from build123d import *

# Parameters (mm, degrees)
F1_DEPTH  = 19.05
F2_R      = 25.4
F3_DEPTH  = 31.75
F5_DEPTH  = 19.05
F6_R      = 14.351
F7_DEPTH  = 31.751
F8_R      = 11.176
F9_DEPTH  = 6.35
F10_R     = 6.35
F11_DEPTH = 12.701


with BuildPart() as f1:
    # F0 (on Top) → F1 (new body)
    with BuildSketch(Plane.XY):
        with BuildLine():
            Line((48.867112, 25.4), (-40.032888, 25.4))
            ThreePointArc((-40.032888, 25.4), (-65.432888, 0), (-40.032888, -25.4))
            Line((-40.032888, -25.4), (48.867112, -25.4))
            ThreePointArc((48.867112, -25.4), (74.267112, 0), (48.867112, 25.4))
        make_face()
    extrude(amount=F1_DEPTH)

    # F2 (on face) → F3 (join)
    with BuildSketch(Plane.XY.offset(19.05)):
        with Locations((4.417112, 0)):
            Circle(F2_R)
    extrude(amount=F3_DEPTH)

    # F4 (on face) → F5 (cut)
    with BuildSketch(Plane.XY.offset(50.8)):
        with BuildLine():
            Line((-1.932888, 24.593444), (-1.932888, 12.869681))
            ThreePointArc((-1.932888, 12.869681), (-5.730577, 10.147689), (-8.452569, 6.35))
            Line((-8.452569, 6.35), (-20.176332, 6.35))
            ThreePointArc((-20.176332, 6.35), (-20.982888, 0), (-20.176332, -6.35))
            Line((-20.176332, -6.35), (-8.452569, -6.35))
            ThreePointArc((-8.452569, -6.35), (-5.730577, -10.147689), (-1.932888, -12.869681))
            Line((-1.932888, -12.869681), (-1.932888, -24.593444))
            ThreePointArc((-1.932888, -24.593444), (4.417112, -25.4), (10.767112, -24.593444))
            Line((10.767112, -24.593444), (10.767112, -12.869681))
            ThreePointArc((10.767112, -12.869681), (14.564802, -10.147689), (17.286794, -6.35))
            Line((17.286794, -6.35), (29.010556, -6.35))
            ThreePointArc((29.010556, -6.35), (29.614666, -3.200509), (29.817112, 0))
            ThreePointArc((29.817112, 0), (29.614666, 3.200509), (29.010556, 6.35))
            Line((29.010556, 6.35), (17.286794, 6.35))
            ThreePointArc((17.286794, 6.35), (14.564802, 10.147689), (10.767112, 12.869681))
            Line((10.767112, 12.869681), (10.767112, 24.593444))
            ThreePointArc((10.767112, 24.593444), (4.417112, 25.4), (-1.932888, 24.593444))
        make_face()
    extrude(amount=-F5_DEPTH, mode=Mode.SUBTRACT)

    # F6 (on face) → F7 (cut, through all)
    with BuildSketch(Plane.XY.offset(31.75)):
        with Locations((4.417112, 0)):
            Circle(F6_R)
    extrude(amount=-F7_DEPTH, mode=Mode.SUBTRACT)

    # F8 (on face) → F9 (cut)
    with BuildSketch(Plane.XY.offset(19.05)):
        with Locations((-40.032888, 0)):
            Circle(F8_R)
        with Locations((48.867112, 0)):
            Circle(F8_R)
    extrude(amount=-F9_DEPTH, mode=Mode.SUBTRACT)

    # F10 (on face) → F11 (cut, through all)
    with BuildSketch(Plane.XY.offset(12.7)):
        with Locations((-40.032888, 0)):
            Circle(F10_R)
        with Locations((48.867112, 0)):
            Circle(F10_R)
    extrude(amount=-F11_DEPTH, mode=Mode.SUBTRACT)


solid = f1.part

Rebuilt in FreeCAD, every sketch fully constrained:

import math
import FreeCAD as App
import Part
import Sketcher
Q = App.Units.Quantity

doc = App.newDocument("Part")
body = doc.addObject("PartDesign::Body", "Body")

# Sketch on XY plane
sketch1 = doc.addObject("Sketcher::SketchObject", "Sketch")
body.addObject(sketch1)
sketch1.AttachmentSupport = (doc.XY_Plane, [""])
sketch1.MapMode = "FlatFace"
sketch1.addGeometry(Part.LineSegment(App.Vector(49, 25, 0), App.Vector(-40, 25, 0)), False)
sketch1.addGeometry(Part.ArcOfCircle(Part.Circle(App.Vector(-40, 0, 0), App.Vector(0, 0, 1), 25), math.radians(90), math.radians(270)), False)
sketch1.addGeometry(Part.LineSegment(App.Vector(-40, -25, 0), App.Vector(49, -25, 0)), False)
sketch1.addGeometry(Part.ArcOfCircle(Part.Circle(App.Vector(49, 0, 0), App.Vector(0, 0, 1), 25), math.radians(-90), math.radians(90)), False)
sketch1.addConstraint(Sketcher.Constraint("Tangent", 0, 2, 1, 1))
sketch1.addConstraint(Sketcher.Constraint("Tangent", 1, 2, 2, 1))
sketch1.addConstraint(Sketcher.Constraint("Tangent", 2, 2, 3, 1))
sketch1.addConstraint(Sketcher.Constraint("Tangent", 3, 2, 0, 1))
sketch1.addConstraint(Sketcher.Constraint("Horizontal", 0))
sketch1.addConstraint(Sketcher.Constraint("Horizontal", 2))
sketch1.addConstraint(Sketcher.Constraint("PointOnObject", 1, 3, -1))
sketch1.addConstraint(Sketcher.Constraint("Radius", 1, Q("1 in")))
sketch1.addConstraint(Sketcher.Constraint("DistanceX", 0, 2, 0, 1, Q("3.5 in")))
sketch1.addConstraint(Sketcher.Constraint("DistanceX", 1, 3, -1, 1, 40.032888))
pad1 = doc.addObject("PartDesign::Pad", "Pad")
body.addObject(pad1)
pad1.Profile = sketch1
pad1.Length = Q("0.75 in")

# Sketch on XY plane
sketch2 = doc.addObject("Sketcher::SketchObject", "Sketch001")
body.addObject(sketch2)
sketch2.AttachmentSupport = (doc.XY_Plane, [""])
sketch2.MapMode = "FlatFace"
sketch2.AttachmentOffset = App.Placement(App.Vector(0, 0, 0.75 * 25.4), App.Rotation())
sketch2.addGeometry(Part.Circle(App.Vector(4, 0, 0), App.Vector(0, 0, 1), 25), False)
sketch2.addConstraint(Sketcher.Constraint("PointOnObject", 0, 3, -1))
sketch2.addConstraint(Sketcher.Constraint("Diameter", 0, Q("2 in")))
sketch2.addConstraint(Sketcher.Constraint("DistanceX", -1, 1, 0, 3, 4.417112))
pad2 = doc.addObject("PartDesign::Pad", "Pad001")
body.addObject(pad2)
pad2.Profile = sketch2
pad2.Length = Q("1.25 in")

# Sketch on XY plane
sketch3 = doc.addObject("Sketcher::SketchObject", "Sketch002")
body.addObject(sketch3)
sketch3.AttachmentSupport = (doc.XY_Plane, [""])
sketch3.MapMode = "FlatFace"
sketch3.AttachmentOffset = App.Placement(App.Vector(0, 0, 2 * 25.4), App.Rotation())
sketch3.addGeometry(Part.LineSegment(App.Vector(-2, 25, 0), App.Vector(-2, 13, 0)), False)
sketch3.addGeometry(Part.ArcOfCircle(Part.Circle(App.Vector(4, 0, 0), App.Vector(0, 0, 1), 14), math.radians(116), math.radians(154)), False)
sketch3.addGeometry(Part.LineSegment(App.Vector(-8, 6, 0), App.Vector(-20, 6, 0)), False)
sketch3.addGeometry(Part.ArcOfCircle(Part.Circle(App.Vector(4, 0, 0), App.Vector(0, 0, 1), 25), math.radians(166), math.radians(194)), False)
sketch3.addGeometry(Part.LineSegment(App.Vector(-20, -6, 0), App.Vector(-8, -6, 0)), False)
sketch3.addGeometry(Part.ArcOfCircle(Part.Circle(App.Vector(4, 0, 0), App.Vector(0, 0, 1), 14), math.radians(-154), math.radians(-116)), False)
sketch3.addGeometry(Part.LineSegment(App.Vector(-2, -13, 0), App.Vector(-2, -25, 0)), False)
sketch3.addGeometry(Part.ArcOfCircle(Part.Circle(App.Vector(4, 0, 0), App.Vector(0, 0, 1), 25), math.radians(-104), math.radians(-76)), False)
sketch3.addGeometry(Part.LineSegment(App.Vector(11, -25, 0), App.Vector(11, -13, 0)), False)
sketch3.addGeometry(Part.ArcOfCircle(Part.Circle(App.Vector(4, 0, 0), App.Vector(0, 0, 1), 14), math.radians(-64), math.radians(-26)), False)
sketch3.addGeometry(Part.LineSegment(App.Vector(17, -6, 0), App.Vector(29, -6, 0)), False)
sketch3.addGeometry(Part.ArcOfCircle(Part.Circle(App.Vector(4, 0, 0), App.Vector(0, 0, 1), 25), math.radians(-14.48), math.radians(0)), False)
sketch3.addGeometry(Part.ArcOfCircle(Part.Circle(App.Vector(4, 0, 0), App.Vector(0, 0, 1), 25), math.radians(0), math.radians(14.48)), False)
sketch3.addGeometry(Part.LineSegment(App.Vector(29, 6, 0), App.Vector(17, 6, 0)), False)
sketch3.addGeometry(Part.ArcOfCircle(Part.Circle(App.Vector(4, 0, 0), App.Vector(0, 0, 1), 14), math.radians(26), math.radians(64)), False)
sketch3.addGeometry(Part.LineSegment(App.Vector(11, 13, 0), App.Vector(11, 25, 0)), False)
sketch3.addGeometry(Part.ArcOfCircle(Part.Circle(App.Vector(4, 0, 0), App.Vector(0, 0, 1), 25), math.radians(76), math.radians(104)), False)
sketch3.addConstraint(Sketcher.Constraint("Coincident", 0, 2, 1, 1))
sketch3.addConstraint(Sketcher.Constraint("Coincident", 1, 2, 2, 1))
sketch3.addConstraint(Sketcher.Constraint("Coincident", 2, 2, 3, 1))
sketch3.addConstraint(Sketcher.Constraint("Coincident", 3, 2, 4, 1))
sketch3.addConstraint(Sketcher.Constraint("Coincident", 4, 2, 5, 1))
sketch3.addConstraint(Sketcher.Constraint("Coincident", 5, 2, 6, 1))
sketch3.addConstraint(Sketcher.Constraint("Coincident", 6, 2, 7, 1))
sketch3.addConstraint(Sketcher.Constraint("Coincident", 7, 2, 8, 1))
sketch3.addConstraint(Sketcher.Constraint("Coincident", 8, 2, 9, 1))
sketch3.addConstraint(Sketcher.Constraint("Coincident", 9, 2, 10, 1))
sketch3.addConstraint(Sketcher.Constraint("Coincident", 10, 2, 11, 1))
sketch3.addConstraint(Sketcher.Constraint("Tangent", 11, 2, 12, 1))
sketch3.addConstraint(Sketcher.Constraint("Coincident", 12, 2, 13, 1))
sketch3.addConstraint(Sketcher.Constraint("Coincident", 13, 2, 14, 1))
sketch3.addConstraint(Sketcher.Constraint("Coincident", 14, 2, 15, 1))
sketch3.addConstraint(Sketcher.Constraint("Coincident", 15, 2, 16, 1))
sketch3.addConstraint(Sketcher.Constraint("Coincident", 16, 2, 0, 1))
sketch3.addConstraint(Sketcher.Constraint("Vertical", 0))
sketch3.addConstraint(Sketcher.Constraint("Horizontal", 2))
sketch3.addConstraint(Sketcher.Constraint("Horizontal", 4))
sketch3.addConstraint(Sketcher.Constraint("Vertical", 6))
sketch3.addConstraint(Sketcher.Constraint("Vertical", 8))
sketch3.addConstraint(Sketcher.Constraint("Horizontal", 10))
sketch3.addConstraint(Sketcher.Constraint("Horizontal", 13))
sketch3.addConstraint(Sketcher.Constraint("Vertical", 15))
sketch3.addConstraint(Sketcher.Constraint("Coincident", 5, 3, 1, 3))
sketch3.addConstraint(Sketcher.Constraint("Coincident", 7, 3, 1, 3))
sketch3.addConstraint(Sketcher.Constraint("Coincident", 9, 3, 1, 3))
sketch3.addConstraint(Sketcher.Constraint("Coincident", 14, 3, 1, 3))
sketch3.addConstraint(Sketcher.Constraint("Coincident", 16, 3, 5, 3))
sketch3.addConstraint(Sketcher.Constraint("Equal", 1, 5))
sketch3.addConstraint(Sketcher.Constraint("Equal", 3, 7))
sketch3.addConstraint(Sketcher.Constraint("Equal", 11, 12))
sketch3.addConstraint(Sketcher.Constraint("Equal", 9, 14))
sketch3.addConstraint(Sketcher.Constraint("Equal", 7, 16))
sketch3.addConstraint(Sketcher.Constraint("Symmetric", 2, 2, 3, 2, -1))
sketch3.addConstraint(Sketcher.Constraint("Symmetric", 0, 2, 5, 2, -1))
sketch3.addConstraint(Sketcher.Constraint("Symmetric", 10, 2, 12, 2, -1))
sketch3.addConstraint(Sketcher.Constraint("PointOnObject", 11, 2, -1))
sketch3.addConstraint(Sketcher.Constraint("Horizontal", 6, 2, 7, 2))
sketch3.addConstraint(Sketcher.Constraint("Horizontal", 5, 2, 8, 2))
sketch3.addConstraint(Sketcher.Constraint("Horizontal", 4, 2, 9, 2))
sketch3.addConstraint(Sketcher.Constraint("Horizontal", 0, 2, 14, 2))
sketch3.addConstraint(Sketcher.Constraint("Equal", 4, 10))
sketch3.addConstraint(Sketcher.Constraint("Equal", 13, 0))
sketch3.addConstraint(Sketcher.Constraint("Radius", 1, Q("0.5650001 in")))
sketch3.addConstraint(Sketcher.Constraint("DistanceX", 1, 3, 11, 2, Q("0.9999999 in")))
sketch3.addConstraint(Sketcher.Constraint("DistanceY", 3, 2, 2, 2, Q("0.5 in")))
sketch3.addConstraint(Sketcher.Constraint("DistanceX", 6, 2, 7, 2, Q("0.5 in")))
sketch3.addConstraint(Sketcher.Constraint("Radius", 11, 25.400021))
sketch3.addConstraint(Sketcher.Constraint("DistanceX", -1, 1, 11, 3, 4.417091))
pocket1 = doc.addObject("PartDesign::Pocket", "Pocket")
body.addObject(pocket1)
pocket1.Profile = sketch3
pocket1.Length = Q("0.75 in")

# Sketch on XY plane
sketch4 = doc.addObject("Sketcher::SketchObject", "Sketch003")
body.addObject(sketch4)
sketch4.AttachmentSupport = (doc.XY_Plane, [""])
sketch4.MapMode = "FlatFace"
sketch4.AttachmentOffset = App.Placement(App.Vector(0, 0, 1.25 * 25.4), App.Rotation())
sketch4.addGeometry(Part.Circle(App.Vector(4, 0, 0), App.Vector(0, 0, 1), 14), False)
sketch4.addConstraint(Sketcher.Constraint("PointOnObject", 0, 3, -1))
sketch4.addConstraint(Sketcher.Constraint("Diameter", 0, Q("1.13 in")))
sketch4.addConstraint(Sketcher.Constraint("DistanceX", -1, 1, 0, 3, 4.417112))
pocket2 = doc.addObject("PartDesign::Pocket", "Pocket001")
body.addObject(pocket2)
pocket2.Profile = sketch4
pocket2.Type = "ThroughAll"

# Sketch on XY plane
sketch5 = doc.addObject("Sketcher::SketchObject", "Sketch004")
body.addObject(sketch5)
sketch5.AttachmentSupport = (doc.XY_Plane, [""])
sketch5.MapMode = "FlatFace"
sketch5.AttachmentOffset = App.Placement(App.Vector(0, 0, 0.75 * 25.4), App.Rotation())
sketch5.addGeometry(Part.Circle(App.Vector(-40, 0, 0), App.Vector(0, 0, 1), 11), False)
sketch5.addGeometry(Part.Circle(App.Vector(49, 0, 0), App.Vector(0, 0, 1), 11), False)
sketch5.addConstraint(Sketcher.Constraint("Equal", 0, 1))
sketch5.addConstraint(Sketcher.Constraint("PointOnObject", 0, 3, -1))
sketch5.addConstraint(Sketcher.Constraint("PointOnObject", 1, 3, -1))
sketch5.addConstraint(Sketcher.Constraint("Diameter", 0, Q("0.88 in")))
sketch5.addConstraint(Sketcher.Constraint("DistanceX", 0, 3, 1, 3, Q("3.5 in")))
sketch5.addConstraint(Sketcher.Constraint("DistanceX", 0, 3, -1, 1, 40.032888))
pocket3 = doc.addObject("PartDesign::Pocket", "Pocket002")
body.addObject(pocket3)
pocket3.Profile = sketch5
pocket3.Length = Q("0.25 in")

# Sketch on XY plane
sketch6 = doc.addObject("Sketcher::SketchObject", "Sketch005")
body.addObject(sketch6)
sketch6.AttachmentSupport = (doc.XY_Plane, [""])
sketch6.MapMode = "FlatFace"
sketch6.AttachmentOffset = App.Placement(App.Vector(0, 0, 0.5 * 25.4), App.Rotation())
sketch6.addGeometry(Part.Circle(App.Vector(-40, 0, 0), App.Vector(0, 0, 1), 6), False)
sketch6.addGeometry(Part.Circle(App.Vector(49, 0, 0), App.Vector(0, 0, 1), 6), False)
sketch6.addConstraint(Sketcher.Constraint("Equal", 0, 1))
sketch6.addConstraint(Sketcher.Constraint("PointOnObject", 0, 3, -1))
sketch6.addConstraint(Sketcher.Constraint("PointOnObject", 1, 3, -1))
sketch6.addConstraint(Sketcher.Constraint("Diameter", 0, Q("0.5 in")))
sketch6.addConstraint(Sketcher.Constraint("DistanceX", 0, 3, 1, 3, Q("3.5 in")))
sketch6.addConstraint(Sketcher.Constraint("DistanceX", 0, 3, -1, 1, 40.032888))
pocket4 = doc.addObject("PartDesign::Pocket", "Pocket003")
body.addObject(pocket4)
pocket4.Profile = sketch6
pocket4.Type = "ThroughAll"

doc.recompute()
